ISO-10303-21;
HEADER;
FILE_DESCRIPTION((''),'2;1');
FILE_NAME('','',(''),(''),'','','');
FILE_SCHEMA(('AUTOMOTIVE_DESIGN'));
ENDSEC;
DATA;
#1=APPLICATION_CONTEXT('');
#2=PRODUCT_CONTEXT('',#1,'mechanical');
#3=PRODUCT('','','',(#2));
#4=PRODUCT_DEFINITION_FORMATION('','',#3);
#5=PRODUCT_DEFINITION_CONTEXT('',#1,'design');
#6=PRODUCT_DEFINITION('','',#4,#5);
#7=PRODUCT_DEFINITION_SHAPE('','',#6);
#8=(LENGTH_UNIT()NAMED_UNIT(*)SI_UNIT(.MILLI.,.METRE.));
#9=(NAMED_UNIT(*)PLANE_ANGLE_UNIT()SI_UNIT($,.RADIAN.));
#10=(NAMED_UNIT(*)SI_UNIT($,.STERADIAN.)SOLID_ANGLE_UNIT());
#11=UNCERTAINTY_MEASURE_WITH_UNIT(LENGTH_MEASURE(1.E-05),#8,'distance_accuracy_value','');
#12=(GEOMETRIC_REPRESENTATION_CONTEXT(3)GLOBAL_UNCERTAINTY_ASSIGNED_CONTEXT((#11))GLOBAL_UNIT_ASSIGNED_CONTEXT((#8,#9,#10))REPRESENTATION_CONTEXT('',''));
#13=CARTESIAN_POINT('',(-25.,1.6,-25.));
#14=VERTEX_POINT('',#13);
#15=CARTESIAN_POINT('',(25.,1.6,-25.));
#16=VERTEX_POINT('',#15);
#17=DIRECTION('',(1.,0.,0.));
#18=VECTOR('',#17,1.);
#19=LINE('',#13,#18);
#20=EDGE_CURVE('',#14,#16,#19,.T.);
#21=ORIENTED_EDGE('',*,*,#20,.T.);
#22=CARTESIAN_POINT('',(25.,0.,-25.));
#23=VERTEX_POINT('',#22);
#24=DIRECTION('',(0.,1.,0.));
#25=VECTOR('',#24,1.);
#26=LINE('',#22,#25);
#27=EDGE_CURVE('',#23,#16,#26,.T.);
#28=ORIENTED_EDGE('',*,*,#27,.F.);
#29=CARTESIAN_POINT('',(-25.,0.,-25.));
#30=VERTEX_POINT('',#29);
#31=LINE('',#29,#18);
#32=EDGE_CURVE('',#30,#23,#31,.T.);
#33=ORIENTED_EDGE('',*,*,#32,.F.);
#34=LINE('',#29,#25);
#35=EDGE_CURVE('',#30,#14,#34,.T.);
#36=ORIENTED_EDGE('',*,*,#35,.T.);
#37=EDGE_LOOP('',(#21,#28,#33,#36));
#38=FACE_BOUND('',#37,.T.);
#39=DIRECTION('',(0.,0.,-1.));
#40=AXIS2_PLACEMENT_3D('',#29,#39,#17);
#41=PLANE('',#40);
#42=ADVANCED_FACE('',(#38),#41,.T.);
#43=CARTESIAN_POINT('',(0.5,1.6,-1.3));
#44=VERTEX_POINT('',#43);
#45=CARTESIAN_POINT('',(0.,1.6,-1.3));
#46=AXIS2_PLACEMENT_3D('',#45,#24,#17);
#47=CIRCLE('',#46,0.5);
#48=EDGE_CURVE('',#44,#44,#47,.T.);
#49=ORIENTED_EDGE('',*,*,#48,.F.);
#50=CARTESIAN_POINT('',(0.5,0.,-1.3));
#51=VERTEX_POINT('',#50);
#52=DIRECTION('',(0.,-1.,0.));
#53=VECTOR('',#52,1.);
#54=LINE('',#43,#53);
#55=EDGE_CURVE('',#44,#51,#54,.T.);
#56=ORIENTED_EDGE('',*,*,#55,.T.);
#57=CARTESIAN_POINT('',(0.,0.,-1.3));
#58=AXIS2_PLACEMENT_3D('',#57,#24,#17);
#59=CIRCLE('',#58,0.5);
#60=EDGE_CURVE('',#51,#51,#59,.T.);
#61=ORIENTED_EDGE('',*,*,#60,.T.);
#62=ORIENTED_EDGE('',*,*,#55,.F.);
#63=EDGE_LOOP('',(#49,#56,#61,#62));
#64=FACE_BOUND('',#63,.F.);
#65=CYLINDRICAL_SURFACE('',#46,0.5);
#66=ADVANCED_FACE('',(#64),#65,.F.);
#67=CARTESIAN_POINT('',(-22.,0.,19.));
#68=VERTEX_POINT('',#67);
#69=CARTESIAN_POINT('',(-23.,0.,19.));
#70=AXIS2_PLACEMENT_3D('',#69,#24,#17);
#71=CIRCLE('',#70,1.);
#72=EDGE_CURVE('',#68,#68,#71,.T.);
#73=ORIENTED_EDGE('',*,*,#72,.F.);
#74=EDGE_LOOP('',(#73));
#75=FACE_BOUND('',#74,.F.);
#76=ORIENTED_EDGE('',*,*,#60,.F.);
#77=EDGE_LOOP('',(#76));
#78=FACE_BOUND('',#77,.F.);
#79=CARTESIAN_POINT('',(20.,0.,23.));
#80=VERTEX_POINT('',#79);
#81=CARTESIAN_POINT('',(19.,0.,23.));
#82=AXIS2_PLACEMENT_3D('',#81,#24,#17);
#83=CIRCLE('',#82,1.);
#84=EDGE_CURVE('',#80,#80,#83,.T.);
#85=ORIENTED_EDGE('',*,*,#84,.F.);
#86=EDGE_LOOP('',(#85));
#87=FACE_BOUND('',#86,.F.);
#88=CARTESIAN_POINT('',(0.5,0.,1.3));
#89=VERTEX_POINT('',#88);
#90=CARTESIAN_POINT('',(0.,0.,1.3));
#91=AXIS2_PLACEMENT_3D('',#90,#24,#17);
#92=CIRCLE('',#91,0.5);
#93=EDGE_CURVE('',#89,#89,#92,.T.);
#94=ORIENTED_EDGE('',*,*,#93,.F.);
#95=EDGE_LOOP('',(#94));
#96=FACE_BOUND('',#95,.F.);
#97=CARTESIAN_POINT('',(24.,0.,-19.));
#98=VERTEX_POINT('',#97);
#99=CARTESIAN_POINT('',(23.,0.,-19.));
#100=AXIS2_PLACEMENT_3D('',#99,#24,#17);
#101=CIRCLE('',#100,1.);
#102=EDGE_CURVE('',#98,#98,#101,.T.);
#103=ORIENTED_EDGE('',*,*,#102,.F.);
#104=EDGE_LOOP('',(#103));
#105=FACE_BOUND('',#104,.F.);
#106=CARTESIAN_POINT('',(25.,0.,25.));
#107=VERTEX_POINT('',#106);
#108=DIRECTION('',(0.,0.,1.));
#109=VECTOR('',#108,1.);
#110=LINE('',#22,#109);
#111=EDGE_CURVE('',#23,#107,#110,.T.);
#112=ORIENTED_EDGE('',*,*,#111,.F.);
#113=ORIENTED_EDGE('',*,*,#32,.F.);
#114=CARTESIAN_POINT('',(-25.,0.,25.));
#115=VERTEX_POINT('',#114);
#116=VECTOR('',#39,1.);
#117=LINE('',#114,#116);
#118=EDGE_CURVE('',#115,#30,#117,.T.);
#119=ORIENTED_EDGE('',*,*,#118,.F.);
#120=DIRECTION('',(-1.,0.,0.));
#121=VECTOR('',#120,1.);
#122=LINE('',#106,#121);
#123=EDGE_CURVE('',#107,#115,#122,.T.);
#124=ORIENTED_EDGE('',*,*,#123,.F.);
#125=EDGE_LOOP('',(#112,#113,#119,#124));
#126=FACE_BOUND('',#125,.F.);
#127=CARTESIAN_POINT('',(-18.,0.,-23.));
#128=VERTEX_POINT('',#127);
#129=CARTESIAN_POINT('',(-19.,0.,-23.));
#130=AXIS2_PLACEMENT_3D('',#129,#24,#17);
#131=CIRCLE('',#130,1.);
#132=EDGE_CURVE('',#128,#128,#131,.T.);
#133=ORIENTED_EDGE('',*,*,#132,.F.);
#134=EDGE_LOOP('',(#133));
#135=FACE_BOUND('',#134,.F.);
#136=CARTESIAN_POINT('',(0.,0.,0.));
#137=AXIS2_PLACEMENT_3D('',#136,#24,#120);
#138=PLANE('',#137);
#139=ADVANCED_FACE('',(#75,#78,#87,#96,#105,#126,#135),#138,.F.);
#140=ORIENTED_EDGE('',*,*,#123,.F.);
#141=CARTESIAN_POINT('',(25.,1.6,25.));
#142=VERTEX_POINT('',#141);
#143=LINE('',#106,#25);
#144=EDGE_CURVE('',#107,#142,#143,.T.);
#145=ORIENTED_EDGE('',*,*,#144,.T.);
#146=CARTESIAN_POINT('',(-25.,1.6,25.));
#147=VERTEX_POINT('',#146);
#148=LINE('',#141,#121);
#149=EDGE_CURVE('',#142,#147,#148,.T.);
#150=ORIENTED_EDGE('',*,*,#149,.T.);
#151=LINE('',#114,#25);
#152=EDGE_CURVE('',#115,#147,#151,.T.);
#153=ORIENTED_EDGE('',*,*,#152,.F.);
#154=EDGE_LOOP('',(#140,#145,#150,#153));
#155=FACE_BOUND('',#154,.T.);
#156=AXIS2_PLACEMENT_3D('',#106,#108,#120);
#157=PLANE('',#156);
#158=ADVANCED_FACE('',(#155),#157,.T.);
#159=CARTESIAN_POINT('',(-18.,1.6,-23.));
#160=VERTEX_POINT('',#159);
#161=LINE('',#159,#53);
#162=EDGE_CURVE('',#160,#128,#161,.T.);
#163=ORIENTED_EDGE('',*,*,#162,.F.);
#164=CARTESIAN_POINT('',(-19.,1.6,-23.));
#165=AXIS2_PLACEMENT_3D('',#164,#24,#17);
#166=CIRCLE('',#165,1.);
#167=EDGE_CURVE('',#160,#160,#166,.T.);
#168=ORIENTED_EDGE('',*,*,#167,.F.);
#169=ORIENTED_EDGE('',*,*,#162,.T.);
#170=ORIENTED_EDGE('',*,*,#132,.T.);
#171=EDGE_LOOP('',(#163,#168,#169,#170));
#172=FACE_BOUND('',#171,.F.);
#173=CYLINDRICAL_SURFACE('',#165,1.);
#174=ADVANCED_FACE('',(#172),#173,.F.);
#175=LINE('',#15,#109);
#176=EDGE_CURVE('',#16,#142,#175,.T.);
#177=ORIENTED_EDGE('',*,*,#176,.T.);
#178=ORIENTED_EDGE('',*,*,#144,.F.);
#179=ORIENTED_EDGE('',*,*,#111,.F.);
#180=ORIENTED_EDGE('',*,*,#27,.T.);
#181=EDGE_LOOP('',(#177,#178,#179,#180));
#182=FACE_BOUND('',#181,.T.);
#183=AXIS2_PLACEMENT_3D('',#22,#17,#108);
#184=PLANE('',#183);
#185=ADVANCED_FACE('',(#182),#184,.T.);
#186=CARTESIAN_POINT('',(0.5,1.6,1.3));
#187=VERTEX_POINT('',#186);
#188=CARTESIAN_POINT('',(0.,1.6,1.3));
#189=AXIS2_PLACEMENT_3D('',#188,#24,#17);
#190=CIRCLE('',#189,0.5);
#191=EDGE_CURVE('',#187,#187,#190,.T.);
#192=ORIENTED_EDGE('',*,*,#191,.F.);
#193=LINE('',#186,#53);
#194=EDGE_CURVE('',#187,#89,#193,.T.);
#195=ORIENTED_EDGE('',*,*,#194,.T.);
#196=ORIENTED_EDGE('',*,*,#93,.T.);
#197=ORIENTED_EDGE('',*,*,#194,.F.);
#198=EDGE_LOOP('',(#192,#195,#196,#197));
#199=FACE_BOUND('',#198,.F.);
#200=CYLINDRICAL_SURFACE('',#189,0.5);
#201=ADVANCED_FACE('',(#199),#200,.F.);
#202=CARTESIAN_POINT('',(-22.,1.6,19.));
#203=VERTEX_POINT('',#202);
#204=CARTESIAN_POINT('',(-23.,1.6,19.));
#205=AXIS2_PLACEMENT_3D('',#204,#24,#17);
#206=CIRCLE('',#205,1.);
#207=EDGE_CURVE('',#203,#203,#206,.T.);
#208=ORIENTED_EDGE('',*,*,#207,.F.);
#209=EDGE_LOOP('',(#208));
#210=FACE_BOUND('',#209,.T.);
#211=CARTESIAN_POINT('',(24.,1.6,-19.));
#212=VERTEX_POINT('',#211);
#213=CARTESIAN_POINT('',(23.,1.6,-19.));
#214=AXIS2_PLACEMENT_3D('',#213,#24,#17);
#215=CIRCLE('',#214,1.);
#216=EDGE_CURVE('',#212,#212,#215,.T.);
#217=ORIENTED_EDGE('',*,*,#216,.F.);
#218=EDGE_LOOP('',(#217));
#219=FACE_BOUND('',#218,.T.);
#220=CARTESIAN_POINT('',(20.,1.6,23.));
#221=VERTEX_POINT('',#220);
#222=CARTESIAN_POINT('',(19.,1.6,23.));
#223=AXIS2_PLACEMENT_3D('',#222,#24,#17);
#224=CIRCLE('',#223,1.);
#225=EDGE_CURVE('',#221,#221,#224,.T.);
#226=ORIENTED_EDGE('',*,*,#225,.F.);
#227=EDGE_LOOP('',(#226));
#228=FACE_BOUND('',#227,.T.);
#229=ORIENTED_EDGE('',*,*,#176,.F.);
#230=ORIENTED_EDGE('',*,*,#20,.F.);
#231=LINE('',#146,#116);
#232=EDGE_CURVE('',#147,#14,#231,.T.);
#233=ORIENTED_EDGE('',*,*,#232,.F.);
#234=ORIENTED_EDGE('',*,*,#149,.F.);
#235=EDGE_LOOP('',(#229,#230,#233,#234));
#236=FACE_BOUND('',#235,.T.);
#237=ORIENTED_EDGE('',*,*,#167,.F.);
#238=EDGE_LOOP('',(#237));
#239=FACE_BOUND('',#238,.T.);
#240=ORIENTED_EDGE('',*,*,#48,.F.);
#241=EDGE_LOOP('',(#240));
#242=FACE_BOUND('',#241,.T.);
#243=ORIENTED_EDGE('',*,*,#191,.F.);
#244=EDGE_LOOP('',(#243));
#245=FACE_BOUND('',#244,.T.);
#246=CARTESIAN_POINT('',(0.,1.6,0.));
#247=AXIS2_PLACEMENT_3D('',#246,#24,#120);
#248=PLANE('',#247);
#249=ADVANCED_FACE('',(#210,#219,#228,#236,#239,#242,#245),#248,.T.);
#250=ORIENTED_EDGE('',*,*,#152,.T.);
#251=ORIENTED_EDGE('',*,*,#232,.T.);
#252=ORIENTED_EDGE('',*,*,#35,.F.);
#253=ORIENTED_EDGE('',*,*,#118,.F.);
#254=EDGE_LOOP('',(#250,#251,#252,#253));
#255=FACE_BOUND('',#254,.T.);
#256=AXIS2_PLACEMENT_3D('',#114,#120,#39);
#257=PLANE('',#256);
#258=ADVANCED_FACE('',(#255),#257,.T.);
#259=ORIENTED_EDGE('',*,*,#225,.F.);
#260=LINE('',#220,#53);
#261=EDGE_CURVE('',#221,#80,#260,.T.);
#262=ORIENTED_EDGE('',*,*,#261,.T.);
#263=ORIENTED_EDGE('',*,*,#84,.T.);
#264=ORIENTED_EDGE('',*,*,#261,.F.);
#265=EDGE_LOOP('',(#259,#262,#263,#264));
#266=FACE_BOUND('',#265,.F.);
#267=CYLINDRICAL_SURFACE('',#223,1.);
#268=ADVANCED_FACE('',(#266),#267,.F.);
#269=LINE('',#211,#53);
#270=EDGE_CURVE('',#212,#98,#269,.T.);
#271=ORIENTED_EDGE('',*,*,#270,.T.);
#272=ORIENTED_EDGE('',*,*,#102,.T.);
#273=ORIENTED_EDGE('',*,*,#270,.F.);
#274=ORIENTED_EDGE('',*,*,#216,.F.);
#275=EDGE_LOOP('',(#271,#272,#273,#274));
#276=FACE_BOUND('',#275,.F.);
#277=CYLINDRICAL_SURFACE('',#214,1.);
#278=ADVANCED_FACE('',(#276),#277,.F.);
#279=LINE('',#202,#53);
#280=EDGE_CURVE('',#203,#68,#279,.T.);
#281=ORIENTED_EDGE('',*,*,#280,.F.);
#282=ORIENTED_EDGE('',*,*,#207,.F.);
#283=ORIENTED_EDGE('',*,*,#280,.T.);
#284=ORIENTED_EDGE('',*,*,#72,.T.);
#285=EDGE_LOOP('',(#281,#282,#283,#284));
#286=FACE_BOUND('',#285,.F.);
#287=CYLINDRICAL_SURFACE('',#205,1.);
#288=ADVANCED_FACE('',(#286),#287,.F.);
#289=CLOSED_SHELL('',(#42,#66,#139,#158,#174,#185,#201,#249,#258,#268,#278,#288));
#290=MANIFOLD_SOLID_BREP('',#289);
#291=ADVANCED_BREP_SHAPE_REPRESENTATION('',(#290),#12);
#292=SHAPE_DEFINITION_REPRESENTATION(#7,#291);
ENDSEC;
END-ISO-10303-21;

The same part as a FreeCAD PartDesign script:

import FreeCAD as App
import Part
import Sketcher
Q = App.Units.Quantity


def add_polygon(sketch, points):
    """Adds a closed chain of lines whose ends are joined by coincident constraints."""
    first, n = sketch.GeometryCount, len(points)
    for a, b in zip(points, points[1:] + points[:1]):
        sketch.addGeometry(Part.LineSegment(App.Vector(*a, 0), App.Vector(*b, 0)), False)
    for i in range(n):
        sketch.addConstraint(Sketcher.Constraint("Coincident", first + i, 2, first + (i + 1) % n, 1))

doc = App.newDocument("Part")
body = doc.addObject("PartDesign::Body", "Body")

# Sketch on XZ plane
sketch1 = doc.addObject("Sketcher::SketchObject", "Sketch")
body.addObject(sketch1)
sketch1.AttachmentSupport = (doc.XZ_Plane, [""])
sketch1.MapMode = "FlatFace"
add_polygon(sketch1, [(-25, 25), (25, 25), (25, -25), (-25, -25)])  # lines 0-3
sketch1.addConstraint([
    Sketcher.Constraint("Horizontal", 0),
    Sketcher.Constraint("Vertical", 1),
    Sketcher.Constraint("Horizontal", 2),
    Sketcher.Constraint("Vertical", 3),
    Sketcher.Constraint("Symmetric", 0, 2, 2, 2, -1, 1),
    Sketcher.Constraint("Equal", 2, 1),
    Sketcher.Constraint("DistanceX", 0, 1, 0, 2, Q("50 mm")),
])
pad1 = doc.addObject("PartDesign::Pad", "Pad")
body.addObject(pad1)
pad1.Profile = sketch1
pad1.Length = 1.6
pad1.Reversed = True

# Sketch on XZ plane
sketch2 = doc.addObject("Sketcher::SketchObject", "Sketch001")
body.addObject(sketch2)
sketch2.AttachmentSupport = (doc.XZ_Plane, [""])
sketch2.MapMode = "FlatFace"
sketch2.AttachmentOffset = App.Placement(App.Vector(0, 0, -1.6), App.Rotation())
sketch2.addGeometry([
    Part.Circle(App.Vector(-23, 19, 0), App.Vector(0, 0, 1), 1),
    Part.Circle(App.Vector(19, 23, 0), App.Vector(0, 0, 1), 1),
    Part.Circle(App.Vector(23, -19, 0), App.Vector(0, 0, 1), 1),
    Part.Circle(App.Vector(-19, -23, 0), App.Vector(0, 0, 1), 1),
], False)
sketch2.addConstraint([
    Sketcher.Constraint("Equal", 0, 1),
    Sketcher.Constraint("Equal", 1, 2),
    Sketcher.Constraint("Equal", 2, 3),
    Sketcher.Constraint("Symmetric", 0, 3, 2, 3, -1, 1),
    Sketcher.Constraint("Symmetric", 1, 3, 3, 3, -1, 1),
    Sketcher.Constraint("Diameter", 0, Q("2 mm")),
    Sketcher.Constraint("DistanceX", 0, 3, -1, 1, Q("23 mm")),
    Sketcher.Constraint("DistanceY", -1, 1, 0, 3, Q("19 mm")),
    Sketcher.Constraint("DistanceX", -1, 1, 1, 3, Q("19 mm")),
    Sketcher.Constraint("DistanceY", -1, 1, 1, 3, Q("23 mm")),
])
pocket1 = doc.addObject("PartDesign::Pocket", "Pocket")
body.addObject(pocket1)
pocket1.Profile = sketch2
pocket1.Length = 2
pocket1.Reversed = True

# Sketch on XZ plane
sketch3 = doc.addObject("Sketcher::SketchObject", "Sketch002")
body.addObject(sketch3)
sketch3.AttachmentSupport = (doc.XZ_Plane, [""])
sketch3.MapMode = "FlatFace"
sketch3.AttachmentOffset = App.Placement(App.Vector(0, 0, -1.6), App.Rotation())
sketch3.addGeometry([
    Part.Circle(App.Vector(0, -1.3, 0), App.Vector(0, 0, 1), 0.5),
    Part.Circle(App.Vector(0, 1.3, 0), App.Vector(0, 0, 1), 0.5),
], False)
sketch3.addConstraint([
    Sketcher.Constraint("Equal", 0, 1),
    Sketcher.Constraint("Symmetric", 0, 3, 1, 3, -1, 1),
    Sketcher.Constraint("PointOnObject", 0, 3, -2),
    Sketcher.Constraint("Diameter", 0, Q("1 mm")),
    Sketcher.Constraint("DistanceY", 0, 3, -1, 1, Q("1.3 mm")),
])
pocket2 = doc.addObject("PartDesign::Pocket", "Pocket001")
body.addObject(pocket2)
pocket2.Profile = sketch3
pocket2.Length = 2
pocket2.Reversed = True

doc.recompute()
